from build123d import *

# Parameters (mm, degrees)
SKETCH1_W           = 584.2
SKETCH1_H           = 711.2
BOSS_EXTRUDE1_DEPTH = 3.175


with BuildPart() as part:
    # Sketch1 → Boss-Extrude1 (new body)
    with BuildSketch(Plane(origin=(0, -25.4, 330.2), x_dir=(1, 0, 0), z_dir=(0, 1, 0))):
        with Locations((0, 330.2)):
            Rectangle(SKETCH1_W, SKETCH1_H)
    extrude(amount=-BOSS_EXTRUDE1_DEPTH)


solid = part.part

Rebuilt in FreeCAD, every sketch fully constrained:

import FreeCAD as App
import Part
import Sketcher

V = App.Vector
Q = App.Units.Quantity


def add_polygon(sketch, points):
    """Adds a closed chain of lines whose ends are joined by coincident constraints."""
    first, n = sketch.GeometryCount, len(points)
    for a, b in zip(points, points[1:] + points[:1]):
        sketch.addGeometry(Part.LineSegment(App.Vector(*a, 0), App.Vector(*b, 0)), False)
    for i in range(n):
        sketch.addConstraint(Sketcher.Constraint("Coincident", first + i, 2, first + (i + 1) % n, 1))

doc = App.newDocument("Part")
body = doc.addObject("PartDesign::Body", "Body")

sketch1 = body.newObject("Sketcher::SketchObject", "Sketch")
sketch1.AttachmentSupport = (doc.getObject("XZ_Plane"), [""])
sketch1.MapMode = "FlatFace"
sketch1.AttachmentOffset = App.Placement(V(0, 0, 1 * 25.4), App.Rotation())
add_polygon(sketch1, [(-292, -356), (-292, 356), (292, 356), (292, -356)])
sketch1.addConstraint(Sketcher.Constraint("Vertical", 0))
sketch1.addConstraint(Sketcher.Constraint("Horizontal", 1))
sketch1.addConstraint(Sketcher.Constraint("Vertical", 2))
sketch1.addConstraint(Sketcher.Constraint("Horizontal", 3))
sketch1.addConstraint(Sketcher.Constraint("Symmetric", 0, 2, 2, 2, -1, 1))
sketch1.addConstraint(Sketcher.Constraint("DistanceX", 1, 1, 1, 2, Q("23 in")))
sketch1.addConstraint(Sketcher.Constraint("DistanceY", 0, 1, 0, 2, Q("28 in")))
pad1 = body.newObject("PartDesign::Pad", "Pad")
pad1.Profile = sketch1
pad1.Length = Q("0.125 in")

doc.recompute()
